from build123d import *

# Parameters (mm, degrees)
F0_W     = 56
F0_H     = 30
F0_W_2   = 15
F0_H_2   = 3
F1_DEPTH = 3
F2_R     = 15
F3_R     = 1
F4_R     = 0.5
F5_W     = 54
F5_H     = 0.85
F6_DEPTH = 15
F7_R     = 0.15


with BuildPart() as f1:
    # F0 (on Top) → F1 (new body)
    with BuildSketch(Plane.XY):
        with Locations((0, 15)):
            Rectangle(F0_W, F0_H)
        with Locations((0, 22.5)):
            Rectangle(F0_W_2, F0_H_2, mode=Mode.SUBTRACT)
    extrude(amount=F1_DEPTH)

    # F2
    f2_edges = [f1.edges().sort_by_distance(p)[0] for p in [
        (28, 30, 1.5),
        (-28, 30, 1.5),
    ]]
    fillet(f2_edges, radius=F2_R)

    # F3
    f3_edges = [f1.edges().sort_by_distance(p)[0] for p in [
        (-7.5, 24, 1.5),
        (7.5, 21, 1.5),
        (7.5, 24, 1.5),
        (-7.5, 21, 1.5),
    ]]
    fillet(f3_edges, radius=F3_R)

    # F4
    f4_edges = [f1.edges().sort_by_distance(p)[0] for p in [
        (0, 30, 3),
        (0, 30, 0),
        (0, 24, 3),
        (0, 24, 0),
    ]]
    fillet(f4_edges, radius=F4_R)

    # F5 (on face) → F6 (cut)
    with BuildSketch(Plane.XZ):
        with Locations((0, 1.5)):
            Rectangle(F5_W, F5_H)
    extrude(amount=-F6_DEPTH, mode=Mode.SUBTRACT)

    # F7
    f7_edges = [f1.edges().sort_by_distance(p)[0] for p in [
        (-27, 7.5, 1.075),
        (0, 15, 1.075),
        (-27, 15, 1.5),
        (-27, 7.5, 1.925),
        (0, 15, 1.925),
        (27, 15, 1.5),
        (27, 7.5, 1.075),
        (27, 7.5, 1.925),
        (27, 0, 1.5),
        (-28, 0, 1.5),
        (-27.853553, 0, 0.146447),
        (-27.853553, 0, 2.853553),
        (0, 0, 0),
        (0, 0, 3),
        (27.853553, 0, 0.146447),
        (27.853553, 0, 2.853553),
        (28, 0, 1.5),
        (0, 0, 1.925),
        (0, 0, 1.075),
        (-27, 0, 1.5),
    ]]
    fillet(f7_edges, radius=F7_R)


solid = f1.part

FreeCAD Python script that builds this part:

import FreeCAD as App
import Part
import Sketcher

V = App.Vector


def edges_at(feature, points):
    """Names of the edges that pass closest to the given points."""
    edges = feature.Shape.Edges
    near = lambda p: min(range(len(edges)), key=lambda i: edges[i].distToShape(Part.Vertex(*p))[0])
    return sorted({f"Edge{near(p) + 1}" for p in points})


def add_polygon(sketch, points):
    """Adds a closed chain of lines whose ends are joined by coincident constraints."""
    first, n = sketch.GeometryCount, len(points)
    for a, b in zip(points, points[1:] + points[:1]):
        sketch.addGeometry(Part.LineSegment(App.Vector(*a, 0), App.Vector(*b, 0)), False)
    for i in range(n):
        sketch.addConstraint(Sketcher.Constraint("Coincident", first + i, 2, first + (i + 1) % n, 1))

doc = App.newDocument("Part")
body = doc.addObject("PartDesign::Body", "Body")

sketch1 = body.newObject("Sketcher::SketchObject", "Sketch")
sketch1.AttachmentSupport = (doc.getObject("XY_Plane"), [""])
sketch1.MapMode = "FlatFace"
add_polygon(sketch1, [(-28, 30), (-28, 0), (28, 0), (28, 30)])
add_polygon(sketch1, [(7.5, 21), (-7.5, 21), (-7.5, 24), (7.5, 24)])
sketch1.addConstraint(Sketcher.Constraint("Vertical", 0))
sketch1.addConstraint(Sketcher.Constraint("Horizontal", 1))
sketch1.addConstraint(Sketcher.Constraint("Vertical", 2))
sketch1.addConstraint(Sketcher.Constraint("Horizontal", 3))
sketch1.addConstraint(Sketcher.Constraint("Horizontal", 4))
sketch1.addConstraint(Sketcher.Constraint("Vertical", 5))
sketch1.addConstraint(Sketcher.Constraint("Horizontal", 6))
sketch1.addConstraint(Sketcher.Constraint("Vertical", 7))
sketch1.addConstraint(Sketcher.Constraint("Symmetric", 0, 2, 1, 2, -1, 1))
sketch1.addConstraint(Sketcher.Constraint("DistanceX", 1, 1, 1, 2, 56.0))
sketch1.addConstraint(Sketcher.Constraint("DistanceX", 4, 2, 4, 1, 15.0))
sketch1.addConstraint(Sketcher.Constraint("DistanceY", 0, 2, 0, 1, 30.0))
sketch1.addConstraint(Sketcher.Constraint("DistanceY", 5, 1, 5, 2, 3.0))
sketch1.addConstraint(Sketcher.Constraint("DistanceY", -1, 1, 4, 2, 21.0))
sketch1.addConstraint(Sketcher.Constraint("DistanceX", 4, 2, -1, 1, 7.5))
pad1 = body.newObject("PartDesign::Pad", "Pad")
pad1.Profile = sketch1
pad1.Length = 3
doc.recompute()

fillet = body.newObject("PartDesign::Fillet", "Fillet")
fillet.Base = (pad1, edges_at(pad1, [(28, 30, 1.5), (-28, 30, 1.5)]))
fillet.Radius = 15
doc.recompute()

fillet2 = body.newObject("PartDesign::Fillet", "Fillet001")
fillet2.Base = (fillet, edges_at(fillet, [
    (-7.5, 24, 1.5),
    (7.5, 21, 1.5),
    (7.5, 24, 1.5),
    (-7.5, 21, 1.5),
]))
fillet2.Radius = 1
doc.recompute()

fillet3 = body.newObject("PartDesign::Fillet", "Fillet002")
fillet3.Base = (fillet2, edges_at(fillet2, [
    (0, 30, 3),
    (0, 30, 0),
    (0, 24, 3),
    (0, 24, 0),
]))
fillet3.Radius = 0.5

sketch2 = body.newObject("Sketcher::SketchObject", "Sketch001")
sketch2.AttachmentSupport = (doc.getObject("XZ_Plane"), [""])
sketch2.MapMode = "FlatFace"
add_polygon(sketch2, [(-27, 1.9), (-27, 1.1), (27, 1.1), (27, 1.9)])
sketch2.addConstraint(Sketcher.Constraint("Vertical", 0))
sketch2.addConstraint(Sketcher.Constraint("Horizontal", 1))
sketch2.addConstraint(Sketcher.Constraint("Vertical", 2))
sketch2.addConstraint(Sketcher.Constraint("Horizontal", 3))
sketch2.addConstraint(Sketcher.Constraint("DistanceX", 1, 1, 1, 2, 54.0))
sketch2.addConstraint(Sketcher.Constraint("DistanceX", 0, 2, -1, 1, 27.0))
sketch2.addConstraint(Sketcher.Constraint("DistanceY", 0, 2, 0, 1, 0.85))
sketch2.addConstraint(Sketcher.Constraint("DistanceY", -1, 1, 0, 2, 1.075))
pocket1 = body.newObject("PartDesign::Pocket", "Pocket")
pocket1.Profile = sketch2
pocket1.Length = 15
doc.recompute()

fillet4 = body.newObject("PartDesign::Fillet", "Fillet003")
fillet4.Base = (pocket1, edges_at(pocket1, [
    (-27, 7.5, 1.075),
    (0, 15, 1.075),
    (-27, 15, 1.5),
    (-27, 7.5, 1.925),
    (0, 15, 1.925),
    (27, 15, 1.5),
    (27, 7.5, 1.075),
    (27, 7.5, 1.925),
    (27, 0, 1.5),
    (-28, 0, 1.5),
    (-27.854, 0, 0.146),
    (-27.854, 0, 2.854),
    (0, 0, 0),
    (0, 0, 3),
    (27.854, 0, 0.146),
    (27.854, 0, 2.854),
    (28, 0, 1.5),
    (0, 0, 1.925),
    (0, 0, 1.075),
    (-27, 0, 1.5),
]))
fillet4.Radius = 0.15

doc.recompute()
